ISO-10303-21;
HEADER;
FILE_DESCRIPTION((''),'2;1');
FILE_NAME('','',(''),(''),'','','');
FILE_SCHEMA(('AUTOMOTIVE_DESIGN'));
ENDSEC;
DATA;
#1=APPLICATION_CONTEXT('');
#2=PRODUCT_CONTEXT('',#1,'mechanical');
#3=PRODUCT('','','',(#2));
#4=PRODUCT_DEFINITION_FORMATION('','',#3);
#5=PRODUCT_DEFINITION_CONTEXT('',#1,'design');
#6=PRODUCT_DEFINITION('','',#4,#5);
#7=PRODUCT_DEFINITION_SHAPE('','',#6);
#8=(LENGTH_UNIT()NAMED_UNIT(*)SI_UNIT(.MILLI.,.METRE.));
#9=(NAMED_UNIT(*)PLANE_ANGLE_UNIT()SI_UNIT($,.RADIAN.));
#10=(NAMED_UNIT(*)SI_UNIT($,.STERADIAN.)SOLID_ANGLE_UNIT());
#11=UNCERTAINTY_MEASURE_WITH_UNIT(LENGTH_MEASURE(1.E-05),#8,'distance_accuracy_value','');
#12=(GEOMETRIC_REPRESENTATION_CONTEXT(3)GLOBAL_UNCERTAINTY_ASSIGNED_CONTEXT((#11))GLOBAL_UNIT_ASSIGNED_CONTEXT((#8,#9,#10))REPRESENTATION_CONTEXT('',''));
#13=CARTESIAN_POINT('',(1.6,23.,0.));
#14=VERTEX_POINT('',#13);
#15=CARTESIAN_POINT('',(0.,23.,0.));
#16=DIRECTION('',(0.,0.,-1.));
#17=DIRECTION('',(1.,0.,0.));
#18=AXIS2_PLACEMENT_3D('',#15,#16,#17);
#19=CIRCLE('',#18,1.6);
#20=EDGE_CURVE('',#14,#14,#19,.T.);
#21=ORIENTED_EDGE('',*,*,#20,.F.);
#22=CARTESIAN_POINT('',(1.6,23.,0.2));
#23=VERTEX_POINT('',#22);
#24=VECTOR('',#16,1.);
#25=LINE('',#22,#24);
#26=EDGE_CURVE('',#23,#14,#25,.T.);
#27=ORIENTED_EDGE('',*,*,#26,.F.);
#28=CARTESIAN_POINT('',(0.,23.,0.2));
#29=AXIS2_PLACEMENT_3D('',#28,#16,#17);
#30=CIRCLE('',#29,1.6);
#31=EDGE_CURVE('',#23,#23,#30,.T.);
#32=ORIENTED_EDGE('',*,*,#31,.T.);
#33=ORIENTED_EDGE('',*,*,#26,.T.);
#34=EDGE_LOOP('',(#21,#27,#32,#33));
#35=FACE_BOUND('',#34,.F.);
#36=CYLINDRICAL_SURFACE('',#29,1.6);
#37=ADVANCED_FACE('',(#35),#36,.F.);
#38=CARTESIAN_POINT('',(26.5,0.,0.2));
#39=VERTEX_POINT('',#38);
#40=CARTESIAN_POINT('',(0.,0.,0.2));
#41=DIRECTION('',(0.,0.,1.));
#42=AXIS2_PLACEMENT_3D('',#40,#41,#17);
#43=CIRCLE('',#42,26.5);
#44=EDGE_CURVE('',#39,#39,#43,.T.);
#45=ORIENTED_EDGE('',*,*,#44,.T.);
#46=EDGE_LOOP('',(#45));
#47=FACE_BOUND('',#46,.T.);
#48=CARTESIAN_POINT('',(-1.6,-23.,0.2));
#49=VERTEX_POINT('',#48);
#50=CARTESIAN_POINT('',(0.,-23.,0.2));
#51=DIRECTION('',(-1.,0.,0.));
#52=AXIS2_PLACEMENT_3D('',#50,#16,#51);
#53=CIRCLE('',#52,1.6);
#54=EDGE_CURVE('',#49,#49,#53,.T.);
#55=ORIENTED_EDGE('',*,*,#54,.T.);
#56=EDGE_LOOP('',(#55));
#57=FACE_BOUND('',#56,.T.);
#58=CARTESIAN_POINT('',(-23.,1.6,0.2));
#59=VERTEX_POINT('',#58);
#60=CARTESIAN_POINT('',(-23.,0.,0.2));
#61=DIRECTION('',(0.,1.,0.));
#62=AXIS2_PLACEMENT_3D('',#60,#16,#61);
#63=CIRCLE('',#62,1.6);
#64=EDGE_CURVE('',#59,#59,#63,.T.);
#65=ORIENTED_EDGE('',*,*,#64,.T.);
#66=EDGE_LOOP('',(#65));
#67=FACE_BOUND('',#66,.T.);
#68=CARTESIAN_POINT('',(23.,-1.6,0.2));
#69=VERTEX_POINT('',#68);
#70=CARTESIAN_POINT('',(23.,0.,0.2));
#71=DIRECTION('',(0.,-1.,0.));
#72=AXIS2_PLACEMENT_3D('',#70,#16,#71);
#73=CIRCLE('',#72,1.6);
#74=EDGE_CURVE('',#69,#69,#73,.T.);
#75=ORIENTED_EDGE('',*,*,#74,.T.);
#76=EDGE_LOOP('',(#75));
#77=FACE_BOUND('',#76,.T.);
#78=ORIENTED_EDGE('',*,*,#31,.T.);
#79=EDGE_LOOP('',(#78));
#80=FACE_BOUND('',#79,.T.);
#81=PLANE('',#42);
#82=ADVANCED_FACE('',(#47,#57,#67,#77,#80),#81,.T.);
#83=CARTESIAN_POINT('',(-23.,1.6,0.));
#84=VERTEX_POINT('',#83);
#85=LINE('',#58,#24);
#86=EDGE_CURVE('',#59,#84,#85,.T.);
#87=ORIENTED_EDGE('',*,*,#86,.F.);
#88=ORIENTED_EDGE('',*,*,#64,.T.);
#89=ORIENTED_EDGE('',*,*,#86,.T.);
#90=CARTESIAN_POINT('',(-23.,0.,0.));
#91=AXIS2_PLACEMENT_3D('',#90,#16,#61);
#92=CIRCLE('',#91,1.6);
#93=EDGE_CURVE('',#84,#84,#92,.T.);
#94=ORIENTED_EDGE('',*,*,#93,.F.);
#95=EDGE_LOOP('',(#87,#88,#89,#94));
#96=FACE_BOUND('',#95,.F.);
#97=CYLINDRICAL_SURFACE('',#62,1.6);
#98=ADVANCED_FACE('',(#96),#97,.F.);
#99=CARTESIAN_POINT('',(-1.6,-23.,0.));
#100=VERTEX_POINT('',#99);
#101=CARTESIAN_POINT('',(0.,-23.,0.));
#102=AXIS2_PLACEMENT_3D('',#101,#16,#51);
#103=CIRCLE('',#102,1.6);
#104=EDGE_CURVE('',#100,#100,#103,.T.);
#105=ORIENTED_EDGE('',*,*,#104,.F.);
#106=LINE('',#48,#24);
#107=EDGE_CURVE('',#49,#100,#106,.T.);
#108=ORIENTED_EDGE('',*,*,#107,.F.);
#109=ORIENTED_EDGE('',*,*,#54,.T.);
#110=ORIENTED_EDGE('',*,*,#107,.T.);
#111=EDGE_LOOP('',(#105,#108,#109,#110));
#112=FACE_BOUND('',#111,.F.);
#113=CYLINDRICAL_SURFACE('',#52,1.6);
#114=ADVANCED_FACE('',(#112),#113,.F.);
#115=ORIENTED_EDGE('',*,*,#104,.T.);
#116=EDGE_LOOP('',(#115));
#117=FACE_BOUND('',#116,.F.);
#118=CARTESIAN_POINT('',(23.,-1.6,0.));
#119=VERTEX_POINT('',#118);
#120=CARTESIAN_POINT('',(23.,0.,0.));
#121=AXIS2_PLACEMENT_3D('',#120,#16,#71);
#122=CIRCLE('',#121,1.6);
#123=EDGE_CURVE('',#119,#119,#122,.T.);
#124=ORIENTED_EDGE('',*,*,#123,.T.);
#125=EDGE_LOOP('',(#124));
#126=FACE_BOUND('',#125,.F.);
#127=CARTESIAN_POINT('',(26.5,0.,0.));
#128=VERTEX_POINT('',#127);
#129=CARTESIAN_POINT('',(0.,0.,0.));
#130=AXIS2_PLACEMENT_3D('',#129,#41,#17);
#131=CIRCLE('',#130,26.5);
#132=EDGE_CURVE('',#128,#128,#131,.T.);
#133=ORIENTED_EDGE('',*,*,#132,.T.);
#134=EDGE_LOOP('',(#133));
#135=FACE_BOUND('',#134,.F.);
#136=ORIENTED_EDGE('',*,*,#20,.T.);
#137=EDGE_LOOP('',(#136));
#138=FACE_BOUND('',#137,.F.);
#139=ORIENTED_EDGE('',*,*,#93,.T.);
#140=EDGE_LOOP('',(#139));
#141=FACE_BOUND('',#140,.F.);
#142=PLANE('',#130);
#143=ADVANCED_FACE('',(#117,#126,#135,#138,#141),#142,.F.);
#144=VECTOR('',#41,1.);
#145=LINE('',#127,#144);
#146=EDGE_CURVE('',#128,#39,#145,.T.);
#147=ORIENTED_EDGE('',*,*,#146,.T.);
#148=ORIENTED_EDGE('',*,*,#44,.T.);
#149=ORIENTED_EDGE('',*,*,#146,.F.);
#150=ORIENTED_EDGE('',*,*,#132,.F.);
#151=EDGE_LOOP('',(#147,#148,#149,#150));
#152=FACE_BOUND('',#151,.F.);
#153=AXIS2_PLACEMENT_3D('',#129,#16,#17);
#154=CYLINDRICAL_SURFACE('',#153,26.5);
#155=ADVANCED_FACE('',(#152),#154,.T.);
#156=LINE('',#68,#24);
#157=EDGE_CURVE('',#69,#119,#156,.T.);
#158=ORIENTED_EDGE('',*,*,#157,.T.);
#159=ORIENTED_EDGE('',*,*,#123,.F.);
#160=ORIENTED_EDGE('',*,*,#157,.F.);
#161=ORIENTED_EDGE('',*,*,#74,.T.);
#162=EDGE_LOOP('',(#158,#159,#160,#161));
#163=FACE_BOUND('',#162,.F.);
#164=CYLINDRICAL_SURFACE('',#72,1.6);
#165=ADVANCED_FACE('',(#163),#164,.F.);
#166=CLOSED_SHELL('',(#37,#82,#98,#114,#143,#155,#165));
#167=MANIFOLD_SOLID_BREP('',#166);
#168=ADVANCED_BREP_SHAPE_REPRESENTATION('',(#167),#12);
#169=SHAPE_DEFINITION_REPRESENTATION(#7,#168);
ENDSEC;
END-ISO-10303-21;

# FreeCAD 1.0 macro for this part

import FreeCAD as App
import Part
import Sketcher
from FreeCAD import Vector
Q = App.Units.Quantity

doc = App.newDocument("Part")
params = doc.addObject("Spreadsheet::Sheet", "Params")
for row, (alias, value) in enumerate([
    ("sketch1_diameter", "53 mm"),
    ("pad1_length", "0.2 mm"),
    ("sketch2_diameter", "3.2 mm"),
    ("hole_diameter", "3.2 mm"),
], start=1):
    params.set(f"A{row}", alias)
    params.set(f"B{row}", "=" + value)
    params.setAlias(f"B{row}", alias)

body = doc.addObject("PartDesign::Body", "Body")

# Sketch on XY plane
sketch1 = body.newObject("Sketcher::SketchObject", "Sketch")
sketch1.AttachmentSupport = (doc.getObject("XY_Plane"), [""])
sketch1.MapMode = "FlatFace"
sketch1.addGeometry(Part.Circle(Vector(0, 0, 0), Vector(0, 0, 1), 26), False)
sketch1.addConstraint(Sketcher.Constraint("Coincident", 0, 3, -1, 1))
sketch1.addConstraint(Sketcher.Constraint("Diameter", 0, Q("53 mm")))
sketch1.setExpression("Constraints[1]", "Params.sketch1_diameter")
pad1 = body.newObject("PartDesign::Pad", "Pad")
pad1.Profile = sketch1
pad1.setExpression("Length", "Params.pad1_length")

# Sketch on XY plane
sketch2 = body.newObject("Sketcher::SketchObject", "Sketch001")
sketch2.AttachmentSupport = (doc.getObject("XY_Plane"), [""])
sketch2.MapMode = "FlatFace"
sketch2.AttachmentOffset = App.Placement(Vector(0, 0, 0.2), App.Rotation())
sketch2.addGeometry(Part.Circle(Vector(23, 0, 0), Vector(0, 0, 1), 1.6), False)
sketch2.addConstraint(Sketcher.Constraint("PointOnObject", 0, 3, -1))
sketch2.addConstraint(Sketcher.Constraint("Diameter", 0, Q("3.2 mm")))
sketch2.addConstraint(Sketcher.Constraint("DistanceX", -1, 1, 0, 3, Q("23 mm")))
sketch2.setExpression("Constraints[1]", "Params.sketch2_diameter")
doc.recompute()
hole = body.newObject("PartDesign::Hole", "Hole")
hole.Profile = sketch2
hole.ThreadType = "None"
hole.setExpression("Diameter", "Params.hole_diameter")
hole.DepthType = "ThroughAll"
doc.recompute()

polarpattern = body.newObject("PartDesign::PolarPattern", "PolarPattern")
polarpattern.Originals = [hole]
polarpattern.Axis = (doc.getObject("Z_Axis"), [""])
polarpattern.Angle = 360
polarpattern.Occurrences = 4
body.Tip = polarpattern

doc.recompute()
